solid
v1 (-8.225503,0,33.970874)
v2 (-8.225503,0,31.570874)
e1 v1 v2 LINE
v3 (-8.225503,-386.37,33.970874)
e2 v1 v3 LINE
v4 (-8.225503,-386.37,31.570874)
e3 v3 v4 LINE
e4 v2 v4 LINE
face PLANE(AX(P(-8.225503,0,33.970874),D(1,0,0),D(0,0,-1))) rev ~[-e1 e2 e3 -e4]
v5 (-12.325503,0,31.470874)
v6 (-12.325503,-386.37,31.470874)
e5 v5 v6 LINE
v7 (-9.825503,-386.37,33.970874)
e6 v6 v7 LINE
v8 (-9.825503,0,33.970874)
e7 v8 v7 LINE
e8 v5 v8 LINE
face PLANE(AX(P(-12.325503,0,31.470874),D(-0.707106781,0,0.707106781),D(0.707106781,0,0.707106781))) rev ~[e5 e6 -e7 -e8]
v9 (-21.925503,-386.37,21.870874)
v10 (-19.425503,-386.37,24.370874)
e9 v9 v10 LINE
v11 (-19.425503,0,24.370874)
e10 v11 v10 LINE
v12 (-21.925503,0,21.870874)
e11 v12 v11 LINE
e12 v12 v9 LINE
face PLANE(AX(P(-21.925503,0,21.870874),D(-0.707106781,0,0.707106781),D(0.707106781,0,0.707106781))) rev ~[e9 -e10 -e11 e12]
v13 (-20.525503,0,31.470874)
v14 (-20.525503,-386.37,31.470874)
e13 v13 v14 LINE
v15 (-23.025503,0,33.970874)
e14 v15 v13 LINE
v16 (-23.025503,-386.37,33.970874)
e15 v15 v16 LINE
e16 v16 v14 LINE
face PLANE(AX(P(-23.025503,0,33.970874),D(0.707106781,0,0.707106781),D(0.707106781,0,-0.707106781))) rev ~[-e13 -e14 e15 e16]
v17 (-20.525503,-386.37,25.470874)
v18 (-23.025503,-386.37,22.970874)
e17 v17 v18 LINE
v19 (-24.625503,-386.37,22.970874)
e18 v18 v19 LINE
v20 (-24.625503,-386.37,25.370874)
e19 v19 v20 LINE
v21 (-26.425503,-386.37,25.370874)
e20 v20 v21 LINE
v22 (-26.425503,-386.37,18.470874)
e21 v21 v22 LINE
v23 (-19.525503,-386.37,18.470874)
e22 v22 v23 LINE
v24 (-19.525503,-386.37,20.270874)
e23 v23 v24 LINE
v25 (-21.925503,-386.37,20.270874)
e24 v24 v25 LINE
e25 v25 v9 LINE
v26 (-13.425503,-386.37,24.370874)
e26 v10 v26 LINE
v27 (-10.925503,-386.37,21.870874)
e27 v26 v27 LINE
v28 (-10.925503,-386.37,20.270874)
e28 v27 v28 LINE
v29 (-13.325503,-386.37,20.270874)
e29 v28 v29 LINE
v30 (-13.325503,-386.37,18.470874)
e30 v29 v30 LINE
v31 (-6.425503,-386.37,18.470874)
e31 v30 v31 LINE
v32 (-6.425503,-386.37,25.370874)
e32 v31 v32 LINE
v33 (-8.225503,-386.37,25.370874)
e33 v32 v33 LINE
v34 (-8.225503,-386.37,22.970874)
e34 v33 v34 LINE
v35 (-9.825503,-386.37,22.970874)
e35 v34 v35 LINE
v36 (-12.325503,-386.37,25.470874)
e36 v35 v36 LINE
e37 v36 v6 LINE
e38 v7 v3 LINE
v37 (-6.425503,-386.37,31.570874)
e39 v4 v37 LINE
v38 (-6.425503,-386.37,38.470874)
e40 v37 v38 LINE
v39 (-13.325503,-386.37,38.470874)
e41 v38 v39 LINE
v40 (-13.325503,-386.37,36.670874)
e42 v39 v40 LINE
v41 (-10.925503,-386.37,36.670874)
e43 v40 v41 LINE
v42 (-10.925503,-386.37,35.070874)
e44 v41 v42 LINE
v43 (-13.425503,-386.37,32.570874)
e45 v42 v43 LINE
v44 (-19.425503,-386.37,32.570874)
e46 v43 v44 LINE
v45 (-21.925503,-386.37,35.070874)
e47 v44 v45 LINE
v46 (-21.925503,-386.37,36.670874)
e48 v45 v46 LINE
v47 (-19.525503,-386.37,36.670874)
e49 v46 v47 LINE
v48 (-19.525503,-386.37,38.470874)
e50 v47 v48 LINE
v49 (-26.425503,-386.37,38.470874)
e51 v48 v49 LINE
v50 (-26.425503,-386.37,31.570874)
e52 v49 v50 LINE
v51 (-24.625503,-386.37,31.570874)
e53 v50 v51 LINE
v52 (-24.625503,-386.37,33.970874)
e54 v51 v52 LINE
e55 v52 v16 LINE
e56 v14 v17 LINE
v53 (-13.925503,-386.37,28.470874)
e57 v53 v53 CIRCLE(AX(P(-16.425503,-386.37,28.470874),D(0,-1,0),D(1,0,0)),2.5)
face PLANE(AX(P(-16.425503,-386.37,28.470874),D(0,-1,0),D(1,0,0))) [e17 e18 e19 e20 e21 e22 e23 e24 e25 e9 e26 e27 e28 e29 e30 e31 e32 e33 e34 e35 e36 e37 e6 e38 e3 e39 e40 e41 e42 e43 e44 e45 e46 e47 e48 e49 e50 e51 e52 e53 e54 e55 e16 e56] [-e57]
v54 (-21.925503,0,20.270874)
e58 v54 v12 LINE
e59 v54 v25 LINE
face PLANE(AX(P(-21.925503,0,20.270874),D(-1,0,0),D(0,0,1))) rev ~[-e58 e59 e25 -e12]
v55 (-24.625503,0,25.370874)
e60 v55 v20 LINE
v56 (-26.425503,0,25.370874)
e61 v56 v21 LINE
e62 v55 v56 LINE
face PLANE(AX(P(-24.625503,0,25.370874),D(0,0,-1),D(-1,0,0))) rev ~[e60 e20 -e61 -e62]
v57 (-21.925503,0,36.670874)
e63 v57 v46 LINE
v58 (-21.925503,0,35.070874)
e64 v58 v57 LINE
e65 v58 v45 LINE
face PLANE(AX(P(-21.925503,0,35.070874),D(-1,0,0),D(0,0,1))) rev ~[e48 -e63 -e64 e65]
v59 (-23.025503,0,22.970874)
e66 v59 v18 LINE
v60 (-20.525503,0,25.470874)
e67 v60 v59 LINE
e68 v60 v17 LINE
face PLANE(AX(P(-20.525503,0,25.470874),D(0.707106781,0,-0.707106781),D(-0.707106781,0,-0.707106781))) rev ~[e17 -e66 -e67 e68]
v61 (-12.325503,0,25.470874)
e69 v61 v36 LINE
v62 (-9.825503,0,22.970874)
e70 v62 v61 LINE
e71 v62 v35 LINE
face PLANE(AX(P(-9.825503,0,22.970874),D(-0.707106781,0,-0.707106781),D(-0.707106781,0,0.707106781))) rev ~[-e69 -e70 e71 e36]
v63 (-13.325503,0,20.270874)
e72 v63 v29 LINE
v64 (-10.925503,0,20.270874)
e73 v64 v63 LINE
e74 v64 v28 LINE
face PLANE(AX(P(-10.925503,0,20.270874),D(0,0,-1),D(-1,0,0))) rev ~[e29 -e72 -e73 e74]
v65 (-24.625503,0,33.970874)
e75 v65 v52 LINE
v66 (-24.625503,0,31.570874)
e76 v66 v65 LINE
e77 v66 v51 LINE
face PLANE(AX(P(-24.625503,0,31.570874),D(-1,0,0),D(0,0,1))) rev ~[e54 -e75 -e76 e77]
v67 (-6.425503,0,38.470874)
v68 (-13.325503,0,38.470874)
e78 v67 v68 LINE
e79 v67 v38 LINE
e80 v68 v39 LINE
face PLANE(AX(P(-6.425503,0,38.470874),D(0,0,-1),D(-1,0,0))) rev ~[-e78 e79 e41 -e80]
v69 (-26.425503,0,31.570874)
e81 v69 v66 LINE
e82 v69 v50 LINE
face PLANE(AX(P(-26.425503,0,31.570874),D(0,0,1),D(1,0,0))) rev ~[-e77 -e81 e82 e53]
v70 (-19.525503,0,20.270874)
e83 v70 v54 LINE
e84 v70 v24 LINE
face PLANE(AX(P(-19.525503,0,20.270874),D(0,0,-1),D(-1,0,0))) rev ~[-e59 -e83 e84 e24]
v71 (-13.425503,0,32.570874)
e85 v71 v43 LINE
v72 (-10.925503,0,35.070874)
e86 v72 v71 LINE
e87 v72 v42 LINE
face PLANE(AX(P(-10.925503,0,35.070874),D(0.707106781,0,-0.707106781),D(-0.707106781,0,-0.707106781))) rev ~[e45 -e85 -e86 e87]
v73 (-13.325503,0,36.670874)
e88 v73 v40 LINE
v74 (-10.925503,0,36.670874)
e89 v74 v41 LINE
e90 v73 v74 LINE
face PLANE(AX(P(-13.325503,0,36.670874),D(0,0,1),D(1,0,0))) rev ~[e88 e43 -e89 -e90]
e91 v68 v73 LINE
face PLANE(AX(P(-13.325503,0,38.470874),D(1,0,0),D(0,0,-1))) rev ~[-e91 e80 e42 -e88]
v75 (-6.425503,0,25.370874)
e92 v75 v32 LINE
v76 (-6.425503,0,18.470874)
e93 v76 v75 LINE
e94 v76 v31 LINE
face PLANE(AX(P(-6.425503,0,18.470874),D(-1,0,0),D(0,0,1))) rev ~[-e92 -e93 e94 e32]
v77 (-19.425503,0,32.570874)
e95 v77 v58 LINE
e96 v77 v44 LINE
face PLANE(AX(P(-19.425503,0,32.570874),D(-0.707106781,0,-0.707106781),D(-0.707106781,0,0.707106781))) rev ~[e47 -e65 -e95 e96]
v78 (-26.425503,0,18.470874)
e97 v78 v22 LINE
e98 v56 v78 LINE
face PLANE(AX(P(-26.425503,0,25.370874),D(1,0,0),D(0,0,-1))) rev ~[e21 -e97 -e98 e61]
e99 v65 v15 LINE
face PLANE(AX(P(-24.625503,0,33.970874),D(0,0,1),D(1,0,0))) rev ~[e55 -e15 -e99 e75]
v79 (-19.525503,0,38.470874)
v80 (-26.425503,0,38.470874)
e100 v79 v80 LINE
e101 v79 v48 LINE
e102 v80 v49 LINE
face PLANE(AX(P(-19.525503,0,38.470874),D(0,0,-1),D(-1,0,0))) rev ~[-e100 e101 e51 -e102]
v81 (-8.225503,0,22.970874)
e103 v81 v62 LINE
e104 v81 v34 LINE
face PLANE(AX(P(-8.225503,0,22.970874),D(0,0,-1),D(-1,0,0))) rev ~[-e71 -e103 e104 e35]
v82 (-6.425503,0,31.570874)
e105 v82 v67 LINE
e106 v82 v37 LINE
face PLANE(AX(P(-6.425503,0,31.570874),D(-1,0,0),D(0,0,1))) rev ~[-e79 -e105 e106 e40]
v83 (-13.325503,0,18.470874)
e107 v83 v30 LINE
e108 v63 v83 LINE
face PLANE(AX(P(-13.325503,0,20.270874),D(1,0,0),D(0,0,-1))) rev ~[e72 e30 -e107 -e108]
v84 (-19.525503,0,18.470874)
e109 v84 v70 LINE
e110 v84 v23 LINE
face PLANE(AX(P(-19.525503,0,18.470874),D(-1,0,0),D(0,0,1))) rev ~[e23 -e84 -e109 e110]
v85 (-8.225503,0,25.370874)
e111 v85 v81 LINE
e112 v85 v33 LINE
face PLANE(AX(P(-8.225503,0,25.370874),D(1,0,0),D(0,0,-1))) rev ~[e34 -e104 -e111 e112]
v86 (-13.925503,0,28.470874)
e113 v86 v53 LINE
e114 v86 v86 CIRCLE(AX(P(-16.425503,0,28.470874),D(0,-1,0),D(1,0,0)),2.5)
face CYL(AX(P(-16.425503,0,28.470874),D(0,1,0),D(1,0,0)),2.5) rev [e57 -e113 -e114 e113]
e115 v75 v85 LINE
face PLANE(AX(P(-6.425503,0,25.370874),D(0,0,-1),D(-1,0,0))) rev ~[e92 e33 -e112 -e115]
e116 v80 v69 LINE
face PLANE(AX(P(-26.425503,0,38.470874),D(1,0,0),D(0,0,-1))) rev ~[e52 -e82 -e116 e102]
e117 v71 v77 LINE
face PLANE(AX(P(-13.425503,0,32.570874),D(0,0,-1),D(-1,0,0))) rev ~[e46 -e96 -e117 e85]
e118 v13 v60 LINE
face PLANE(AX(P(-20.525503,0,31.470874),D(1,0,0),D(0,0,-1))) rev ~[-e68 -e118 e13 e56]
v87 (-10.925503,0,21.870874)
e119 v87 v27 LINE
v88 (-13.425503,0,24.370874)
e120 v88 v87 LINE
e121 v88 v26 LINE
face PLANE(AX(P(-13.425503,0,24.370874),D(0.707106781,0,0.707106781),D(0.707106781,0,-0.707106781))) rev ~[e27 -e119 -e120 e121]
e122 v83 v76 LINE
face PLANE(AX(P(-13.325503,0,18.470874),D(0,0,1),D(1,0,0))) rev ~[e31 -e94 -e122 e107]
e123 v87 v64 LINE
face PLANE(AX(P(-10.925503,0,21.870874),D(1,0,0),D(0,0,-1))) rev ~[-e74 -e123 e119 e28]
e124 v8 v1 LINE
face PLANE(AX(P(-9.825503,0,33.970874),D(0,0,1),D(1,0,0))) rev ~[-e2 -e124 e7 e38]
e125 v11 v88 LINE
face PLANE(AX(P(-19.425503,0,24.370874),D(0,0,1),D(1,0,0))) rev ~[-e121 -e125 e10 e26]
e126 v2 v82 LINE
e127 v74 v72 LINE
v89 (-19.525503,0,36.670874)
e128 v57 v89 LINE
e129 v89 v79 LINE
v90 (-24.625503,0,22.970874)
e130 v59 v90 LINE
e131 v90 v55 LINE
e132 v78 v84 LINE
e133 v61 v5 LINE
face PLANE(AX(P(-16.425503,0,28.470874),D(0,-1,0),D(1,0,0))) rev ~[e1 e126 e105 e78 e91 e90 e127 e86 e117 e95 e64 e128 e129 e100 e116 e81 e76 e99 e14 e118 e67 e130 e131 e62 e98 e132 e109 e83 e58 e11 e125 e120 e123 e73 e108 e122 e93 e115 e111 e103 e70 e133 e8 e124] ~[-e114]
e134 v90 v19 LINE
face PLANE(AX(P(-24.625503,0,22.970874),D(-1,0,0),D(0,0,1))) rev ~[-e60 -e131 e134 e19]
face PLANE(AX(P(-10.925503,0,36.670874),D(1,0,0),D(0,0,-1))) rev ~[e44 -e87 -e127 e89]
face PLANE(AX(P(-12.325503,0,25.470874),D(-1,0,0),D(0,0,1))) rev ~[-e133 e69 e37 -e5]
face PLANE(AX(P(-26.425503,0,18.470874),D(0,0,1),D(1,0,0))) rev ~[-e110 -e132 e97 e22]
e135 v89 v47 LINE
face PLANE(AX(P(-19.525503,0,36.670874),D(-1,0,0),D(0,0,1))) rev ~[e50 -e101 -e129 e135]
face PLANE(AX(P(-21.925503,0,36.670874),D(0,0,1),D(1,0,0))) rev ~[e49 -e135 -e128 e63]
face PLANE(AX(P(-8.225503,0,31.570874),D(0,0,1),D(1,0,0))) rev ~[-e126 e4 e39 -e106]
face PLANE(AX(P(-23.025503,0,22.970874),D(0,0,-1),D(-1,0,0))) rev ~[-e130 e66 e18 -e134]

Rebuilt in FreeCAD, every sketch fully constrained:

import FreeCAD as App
import Part
import Sketcher


def add_polygon(sketch, points):
    """Adds a closed chain of lines whose ends are joined by coincident constraints."""
    first, n = sketch.GeometryCount, len(points)
    for a, b in zip(points, points[1:] + points[:1]):
        sketch.addGeometry(Part.LineSegment(App.Vector(*a, 0), App.Vector(*b, 0)), False)
    for i in range(n):
        sketch.addConstraint(Sketcher.Constraint("Coincident", first + i, 2, first + (i + 1) % n, 1))

doc = App.newDocument("Part")
params = doc.addObject("Spreadsheet::Sheet", "Params")
for row, (alias, value) in enumerate([
    ("sketch1_diameter", "5 mm"),
    ("sketch1_width", "6 mm"),
    ("sketch1_width2", "6.9 mm"),
    ("sketch1_width3", "1.8 mm"),
    ("sketch1_width4", "1.6 mm"),
    ("pad1_length", "386.37 mm"),
], start=1):
    params.set(f"A{row}", alias)
    params.set(f"B{row}", "=" + value)
    params.setAlias(f"B{row}", alias)

body = doc.addObject("PartDesign::Body", "Body")

# Sketch on XZ plane
sketch1 = body.newObject("Sketcher::SketchObject", "Sketch")
sketch1.AttachmentSupport = (doc.getObject("XZ_Plane"), [""])
sketch1.MapMode = "FlatFace"
add_polygon(sketch1, [(-19.5, 38.5), (-26.4, 38.5), (-26.4, 31.6), (-24.6, 31.6), (-24.6, 34), (-23, 34), (-20.5, 31.5), (-20.5, 25.5), (-23, 23), (-24.6, 23), (-24.6, 25.4), (-26.4, 25.4), (-26.4, 18.5), (-19.5, 18.5), (-19.5, 20.3), (-21.9, 20.3), (-21.9, 21.9), (-19.4, 24.4), (-13.4, 24.4), (-10.9, 21.9), (-10.9, 20.3), (-13.3, 20.3), (-13.3, 18.5), (-6.4, 18.5), (-6.4, 25.4), (-8.2, 25.4), (-8.2, 23), (-9.8, 23), (-12.3, 25.5), (-12.3, 31.5), (-9.8, 34), (-8.2, 34), (-8.2, 31.6), (-6.4, 31.6), (-6.4, 38.5), (-13.3, 38.5), (-13.3, 36.7), (-10.9, 36.7), (-10.9, 35.1), (-13.4, 32.6), (-19.4, 32.6), (-21.9, 35.1), (-21.9, 36.7), (-19.5, 36.7)])  # lines 0-43
sketch1.addGeometry(Part.Circle(App.Vector(-16.4, 28.5, 0), App.Vector(0, 0, 1), 2.5), False)  # 44
sketch1.addConstraint([
    Sketcher.Constraint("Horizontal", 0),
    Sketcher.Constraint("Vertical", 1),
    Sketcher.Constraint("Horizontal", 2),
    Sketcher.Constraint("Vertical", 3),
    Sketcher.Constraint("Horizontal", 4),
    Sketcher.Constraint("Vertical", 6),
    Sketcher.Constraint("Horizontal", 8),
    Sketcher.Constraint("Vertical", 9),
    Sketcher.Constraint("Horizontal", 10),
    Sketcher.Constraint("Vertical", 11),
    Sketcher.Constraint("Horizontal", 12),
    Sketcher.Constraint("Vertical", 13),
    Sketcher.Constraint("Horizontal", 14),
    Sketcher.Constraint("Vertical", 15),
    Sketcher.Constraint("Horizontal", 17),
    Sketcher.Constraint("Vertical", 19),
    Sketcher.Constraint("Horizontal", 20),
    Sketcher.Constraint("Vertical", 21),
    Sketcher.Constraint("Horizontal", 22),
    Sketcher.Constraint("Vertical", 23),
    Sketcher.Constraint("Horizontal", 24),
    Sketcher.Constraint("Vertical", 25),
    Sketcher.Constraint("Horizontal", 26),
    Sketcher.Constraint("Vertical", 28),
    Sketcher.Constraint("Horizontal", 30),
    Sketcher.Constraint("Vertical", 31),
    Sketcher.Constraint("Horizontal", 32),
    Sketcher.Constraint("Vertical", 33),
    Sketcher.Constraint("Horizontal", 34),
    Sketcher.Constraint("Vertical", 35),
    Sketcher.Constraint("Horizontal", 36),
    Sketcher.Constraint("Vertical", 37),
    Sketcher.Constraint("Horizontal", 39),
    Sketcher.Constraint("Vertical", 41),
    Sketcher.Constraint("Horizontal", 42),
    Sketcher.Constraint("Vertical", 43),
    Sketcher.Constraint("Perpendicular", 5, 7),
    Sketcher.Constraint("Parallel", 7, 16),
    Sketcher.Constraint("Perpendicular", 16, 18),
    Sketcher.Constraint("Parallel", 18, 27),
    Sketcher.Constraint("Perpendicular", 27, 29),
    Sketcher.Constraint("Parallel", 29, 38),
    Sketcher.Constraint("Perpendicular", 38, 40),
    Sketcher.Constraint("Horizontal", 15, 2, 18, 2),
    Sketcher.Constraint("Horizontal", 14, 2, 19, 2),
    Sketcher.Constraint("Horizontal", 12, 2, 21, 2),
    Sketcher.Constraint("Horizontal", 10, 2, 23, 2),
    Sketcher.Constraint("Horizontal", 8, 2, 25, 2),
    Sketcher.Constraint("Horizontal", 6, 2, 27, 2),
    Sketcher.Constraint("Horizontal", 5, 2, 28, 2),
    Sketcher.Constraint("Horizontal", 4, 2, 29, 2),
    Sketcher.Constraint("Horizontal", 2, 2, 31, 2),
    Sketcher.Constraint("Horizontal", 0, 2, 33, 2),
    Sketcher.Constraint("Horizontal", 37, 2, 40, 2),
    Sketcher.Constraint("Horizontal", 36, 2, 41, 2),
    Sketcher.Constraint("Vertical", 4, 2, 7, 2),
    Sketcher.Constraint("Vertical", 3, 2, 8, 2),
    Sketcher.Constraint("Vertical", 1, 2, 10, 2),
    Sketcher.Constraint("Vertical", 26, 2, 29, 2),
    Sketcher.Constraint("Vertical", 25, 2, 30, 2),
    Sketcher.Constraint("Vertical", 23, 2, 32, 2),
    Sketcher.Constraint("Vertical", 21, 2, 34, 2),
    Sketcher.Constraint("Vertical", 19, 2, 36, 2),
    Sketcher.Constraint("Vertical", 17, 2, 38, 2),
    Sketcher.Constraint("Vertical", 16, 2, 39, 2),
    Sketcher.Constraint("Vertical", 13, 2, 42, 2),
    Sketcher.Constraint("Equal", 14, 20),
    Sketcher.Constraint("Equal", 12, 22),
    Sketcher.Constraint("Equal", 10, 24),
    Sketcher.Constraint("Equal", 8, 26),
    Sketcher.Constraint("Equal", 34, 1),
    Sketcher.Constraint("Equal", 42, 3),
    Sketcher.Constraint("Equal", 39, 6),
    Sketcher.Constraint("Equal", 3, 9),
    Sketcher.Constraint("Equal", 1, 11),
    Sketcher.Constraint("Equal", 32, 13),
    Sketcher.Constraint("Equal", 30, 15),
    Sketcher.Constraint("Equal", 21, 35),
    Sketcher.Constraint("Equal", 19, 37),
    Sketcher.Constraint("Equal", 7, 16),
    Sketcher.Constraint("Diameter", 44, 5.0),
    Sketcher.Constraint("DistanceX", 17, 1, 17, 2, 6.0),
    Sketcher.Constraint("DistanceX", 0, 2, 0, 1, 6.9),
    Sketcher.Constraint("DistanceX", 2, 1, 2, 2, 1.8),
    Sketcher.Constraint("DistanceX", 4, 1, 4, 2, 1.6),
    Sketcher.Constraint("DistanceX", 14, 2, 14, 1, 2.4),
    Sketcher.Constraint("DistanceX", 0, 2, 44, 3, 10.0),
    Sketcher.Constraint("DistanceY", 44, 3, 0, 2, 10.0),
    Sketcher.Constraint("DistanceY", 44, 3, 5, 2, 3.0),
    Sketcher.Constraint("DistanceX", 44, 3, -1, 1, 16.425503),
    Sketcher.Constraint("DistanceY", -1, 1, 44, 3, 28.470874),
])
sketch1.setExpression("Constraints[124]", "Params.sketch1_diameter")
sketch1.setExpression("Constraints[125]", "Params.sketch1_width")
sketch1.setExpression("Constraints[126]", "Params.sketch1_width2")
sketch1.setExpression("Constraints[127]", "Params.sketch1_width3")
sketch1.setExpression("Constraints[128]", "Params.sketch1_width4")
pad1 = body.newObject("PartDesign::Pad", "Pad")
pad1.Profile = sketch1
pad1.setExpression("Length", "Params.pad1_length")

doc.recompute()
